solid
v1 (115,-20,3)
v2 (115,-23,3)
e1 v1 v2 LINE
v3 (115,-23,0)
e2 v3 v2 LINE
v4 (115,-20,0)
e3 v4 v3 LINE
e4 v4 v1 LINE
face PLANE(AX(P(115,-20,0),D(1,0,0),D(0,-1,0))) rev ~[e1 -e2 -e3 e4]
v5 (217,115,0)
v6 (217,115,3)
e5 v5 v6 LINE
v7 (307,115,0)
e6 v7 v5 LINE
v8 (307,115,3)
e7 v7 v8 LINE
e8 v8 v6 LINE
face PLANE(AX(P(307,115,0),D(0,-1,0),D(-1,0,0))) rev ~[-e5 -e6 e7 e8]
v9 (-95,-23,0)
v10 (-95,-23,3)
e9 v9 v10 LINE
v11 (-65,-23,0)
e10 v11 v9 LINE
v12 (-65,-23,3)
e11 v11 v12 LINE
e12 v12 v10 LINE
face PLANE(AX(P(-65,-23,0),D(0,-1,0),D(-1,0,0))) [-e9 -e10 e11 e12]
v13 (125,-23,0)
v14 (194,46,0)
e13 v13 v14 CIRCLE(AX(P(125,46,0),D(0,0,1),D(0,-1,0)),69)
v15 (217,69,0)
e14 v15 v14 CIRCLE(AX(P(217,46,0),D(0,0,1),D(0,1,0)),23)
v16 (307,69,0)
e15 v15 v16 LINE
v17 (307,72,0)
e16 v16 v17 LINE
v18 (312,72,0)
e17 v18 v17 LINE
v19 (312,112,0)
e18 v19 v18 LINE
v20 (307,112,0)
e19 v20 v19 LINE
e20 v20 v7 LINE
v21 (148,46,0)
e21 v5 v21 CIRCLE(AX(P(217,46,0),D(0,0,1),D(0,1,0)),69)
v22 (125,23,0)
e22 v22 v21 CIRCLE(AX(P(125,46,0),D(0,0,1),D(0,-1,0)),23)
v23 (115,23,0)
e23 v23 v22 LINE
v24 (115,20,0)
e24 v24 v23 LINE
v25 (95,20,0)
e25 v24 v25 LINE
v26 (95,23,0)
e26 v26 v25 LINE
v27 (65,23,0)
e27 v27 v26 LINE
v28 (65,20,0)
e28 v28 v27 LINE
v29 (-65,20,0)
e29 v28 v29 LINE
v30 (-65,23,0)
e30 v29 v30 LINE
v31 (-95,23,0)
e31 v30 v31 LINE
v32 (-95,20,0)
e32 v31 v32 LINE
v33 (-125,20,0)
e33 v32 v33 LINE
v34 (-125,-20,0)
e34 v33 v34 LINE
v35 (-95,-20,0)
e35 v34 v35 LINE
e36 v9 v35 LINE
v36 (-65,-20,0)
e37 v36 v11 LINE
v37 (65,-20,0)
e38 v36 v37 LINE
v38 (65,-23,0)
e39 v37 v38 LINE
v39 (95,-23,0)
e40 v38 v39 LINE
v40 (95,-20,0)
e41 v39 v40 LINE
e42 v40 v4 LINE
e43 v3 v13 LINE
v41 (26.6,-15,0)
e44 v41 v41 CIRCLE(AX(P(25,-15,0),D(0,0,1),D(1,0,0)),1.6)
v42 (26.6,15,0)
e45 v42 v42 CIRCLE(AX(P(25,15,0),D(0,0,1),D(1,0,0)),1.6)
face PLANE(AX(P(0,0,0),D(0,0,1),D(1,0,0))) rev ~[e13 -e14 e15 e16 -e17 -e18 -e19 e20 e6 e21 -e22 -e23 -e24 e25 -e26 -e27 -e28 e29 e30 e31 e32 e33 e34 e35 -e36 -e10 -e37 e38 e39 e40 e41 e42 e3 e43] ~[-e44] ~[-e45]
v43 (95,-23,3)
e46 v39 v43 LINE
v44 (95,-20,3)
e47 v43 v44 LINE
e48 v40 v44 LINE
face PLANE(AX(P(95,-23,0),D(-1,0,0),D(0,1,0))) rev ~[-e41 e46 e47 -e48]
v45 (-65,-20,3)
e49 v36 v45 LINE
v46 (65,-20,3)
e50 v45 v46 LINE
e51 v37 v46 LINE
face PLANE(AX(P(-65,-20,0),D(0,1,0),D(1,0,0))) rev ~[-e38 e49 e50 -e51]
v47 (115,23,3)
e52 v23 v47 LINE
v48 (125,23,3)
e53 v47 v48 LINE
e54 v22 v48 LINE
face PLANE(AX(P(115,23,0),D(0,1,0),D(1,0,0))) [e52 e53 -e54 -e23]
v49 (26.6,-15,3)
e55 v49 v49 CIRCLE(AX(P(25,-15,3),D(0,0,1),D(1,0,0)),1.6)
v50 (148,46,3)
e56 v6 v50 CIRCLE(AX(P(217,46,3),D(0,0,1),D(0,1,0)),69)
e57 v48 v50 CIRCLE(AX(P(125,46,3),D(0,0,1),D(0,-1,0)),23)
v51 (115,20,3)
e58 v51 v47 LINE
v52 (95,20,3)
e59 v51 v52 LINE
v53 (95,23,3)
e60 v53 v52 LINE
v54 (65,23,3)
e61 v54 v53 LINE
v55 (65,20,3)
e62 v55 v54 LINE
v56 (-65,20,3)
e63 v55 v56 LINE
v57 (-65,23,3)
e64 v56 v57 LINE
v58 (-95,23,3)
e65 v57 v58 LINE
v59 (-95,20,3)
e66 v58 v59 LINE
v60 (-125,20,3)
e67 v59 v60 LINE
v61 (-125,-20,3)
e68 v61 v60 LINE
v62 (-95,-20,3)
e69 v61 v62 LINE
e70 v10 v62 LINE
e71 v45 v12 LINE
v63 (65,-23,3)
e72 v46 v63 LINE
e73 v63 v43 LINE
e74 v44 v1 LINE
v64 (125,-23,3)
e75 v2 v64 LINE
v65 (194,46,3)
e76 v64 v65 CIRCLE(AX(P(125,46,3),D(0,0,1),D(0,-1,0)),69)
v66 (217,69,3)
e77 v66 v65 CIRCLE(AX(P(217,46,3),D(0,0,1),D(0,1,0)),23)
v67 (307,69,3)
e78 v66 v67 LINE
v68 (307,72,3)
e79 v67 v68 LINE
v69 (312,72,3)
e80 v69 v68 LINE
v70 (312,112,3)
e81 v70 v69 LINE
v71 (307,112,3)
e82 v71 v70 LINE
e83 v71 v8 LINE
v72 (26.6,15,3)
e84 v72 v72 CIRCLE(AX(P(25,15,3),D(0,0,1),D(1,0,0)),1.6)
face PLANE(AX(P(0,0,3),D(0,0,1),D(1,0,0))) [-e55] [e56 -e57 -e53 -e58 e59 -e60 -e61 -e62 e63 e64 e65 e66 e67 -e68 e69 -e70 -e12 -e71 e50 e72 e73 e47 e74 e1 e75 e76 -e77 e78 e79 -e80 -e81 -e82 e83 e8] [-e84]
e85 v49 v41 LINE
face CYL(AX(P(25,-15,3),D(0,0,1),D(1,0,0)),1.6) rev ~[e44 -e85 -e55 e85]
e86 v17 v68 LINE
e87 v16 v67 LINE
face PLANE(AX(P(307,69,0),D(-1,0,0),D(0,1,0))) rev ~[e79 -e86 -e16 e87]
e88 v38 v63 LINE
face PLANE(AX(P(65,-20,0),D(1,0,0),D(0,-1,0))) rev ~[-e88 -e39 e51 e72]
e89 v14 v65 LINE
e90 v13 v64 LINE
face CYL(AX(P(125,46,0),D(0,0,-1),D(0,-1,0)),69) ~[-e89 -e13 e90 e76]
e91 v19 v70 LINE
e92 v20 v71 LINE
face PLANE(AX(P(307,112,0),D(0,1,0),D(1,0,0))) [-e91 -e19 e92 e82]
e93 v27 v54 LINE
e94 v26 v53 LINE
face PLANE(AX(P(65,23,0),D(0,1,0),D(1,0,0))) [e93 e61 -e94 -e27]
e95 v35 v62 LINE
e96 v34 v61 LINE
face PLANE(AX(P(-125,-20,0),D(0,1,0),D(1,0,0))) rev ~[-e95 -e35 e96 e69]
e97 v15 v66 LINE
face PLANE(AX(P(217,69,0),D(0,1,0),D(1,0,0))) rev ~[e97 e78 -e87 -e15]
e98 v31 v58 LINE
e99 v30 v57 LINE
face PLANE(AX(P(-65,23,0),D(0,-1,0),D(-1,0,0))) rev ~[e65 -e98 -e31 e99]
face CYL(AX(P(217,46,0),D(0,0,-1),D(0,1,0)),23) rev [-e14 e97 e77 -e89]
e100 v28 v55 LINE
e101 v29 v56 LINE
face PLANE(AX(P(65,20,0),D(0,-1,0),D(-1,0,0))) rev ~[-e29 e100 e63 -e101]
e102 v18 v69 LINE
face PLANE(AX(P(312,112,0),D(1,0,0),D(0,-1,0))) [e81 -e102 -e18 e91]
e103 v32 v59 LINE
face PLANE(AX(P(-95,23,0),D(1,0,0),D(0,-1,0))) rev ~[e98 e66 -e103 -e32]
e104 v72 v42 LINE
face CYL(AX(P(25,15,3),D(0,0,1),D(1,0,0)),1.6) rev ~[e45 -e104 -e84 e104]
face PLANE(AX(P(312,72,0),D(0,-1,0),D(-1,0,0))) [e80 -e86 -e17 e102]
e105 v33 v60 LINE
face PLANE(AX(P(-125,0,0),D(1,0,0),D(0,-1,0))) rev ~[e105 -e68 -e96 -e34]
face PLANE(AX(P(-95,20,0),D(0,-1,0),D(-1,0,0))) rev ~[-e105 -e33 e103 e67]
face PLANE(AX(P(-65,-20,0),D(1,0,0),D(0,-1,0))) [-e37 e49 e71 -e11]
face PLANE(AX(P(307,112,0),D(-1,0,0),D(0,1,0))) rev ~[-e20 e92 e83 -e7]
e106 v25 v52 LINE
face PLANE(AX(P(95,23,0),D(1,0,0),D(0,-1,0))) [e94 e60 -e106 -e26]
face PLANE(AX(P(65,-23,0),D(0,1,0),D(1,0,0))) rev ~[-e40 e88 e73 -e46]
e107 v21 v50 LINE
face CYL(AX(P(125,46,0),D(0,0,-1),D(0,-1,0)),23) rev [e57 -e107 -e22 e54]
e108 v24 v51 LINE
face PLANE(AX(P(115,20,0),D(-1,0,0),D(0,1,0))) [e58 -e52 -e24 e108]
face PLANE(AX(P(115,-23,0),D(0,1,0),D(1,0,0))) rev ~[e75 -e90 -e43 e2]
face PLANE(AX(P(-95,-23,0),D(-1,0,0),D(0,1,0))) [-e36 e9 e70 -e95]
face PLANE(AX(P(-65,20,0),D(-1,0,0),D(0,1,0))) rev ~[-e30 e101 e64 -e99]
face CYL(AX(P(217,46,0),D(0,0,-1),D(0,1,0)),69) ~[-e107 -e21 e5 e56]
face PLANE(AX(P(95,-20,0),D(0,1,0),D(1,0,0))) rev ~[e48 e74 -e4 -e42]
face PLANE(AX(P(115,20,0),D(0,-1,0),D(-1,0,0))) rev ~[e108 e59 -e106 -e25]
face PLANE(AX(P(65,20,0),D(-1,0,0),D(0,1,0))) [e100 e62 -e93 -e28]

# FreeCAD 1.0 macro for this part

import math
import FreeCAD as App
import Part
import Sketcher
from FreeCAD import Vector

doc = App.newDocument("Part")
params = doc.addObject("Spreadsheet::Sheet", "Params")
for row, (alias, value) in enumerate([
    ("sketch1_width", "30 mm"),
    ("sketch1_width2", "20 mm"),
    ("sketch1_width3", "10 mm"),
    ("sketch1_width4", "90 mm"),
    ("sketch1_height", "3 mm"),
    ("pad1_length", "3 mm"),
    ("sketch2_diameter", "3.2 mm"),
    ("pocket1_length", "3 mm"),
], start=1):
    params.set(f"A{row}", alias)
    params.set(f"B{row}", "=" + value)
    params.setAlias(f"B{row}", alias)

body = doc.addObject("PartDesign::Body", "Body")

# Sketch on XY plane
sketch1 = body.newObject("Sketcher::SketchObject", "Sketch")
sketch1.AttachmentSupport = (doc.getObject("XY_Plane"), [""])
sketch1.MapMode = "FlatFace"
sketch1.addGeometry(Part.LineSegment(Vector(-125, -20, 0), Vector(-95, -20, 0)), False)
sketch1.addGeometry(Part.LineSegment(Vector(-95, -20, 0), Vector(-95, -23, 0)), False)
sketch1.addGeometry(Part.LineSegment(Vector(-95, -23, 0), Vector(-65, -23, 0)), False)
sketch1.addGeometry(Part.LineSegment(Vector(-65, -23, 0), Vector(-65, -20, 0)), False)
sketch1.addGeometry(Part.LineSegment(Vector(-65, -20, 0), Vector(65, -20, 0)), False)
sketch1.addGeometry(Part.LineSegment(Vector(65, -20, 0), Vector(65, -23, 0)), False)
sketch1.addGeometry(Part.LineSegment(Vector(65, -23, 0), Vector(95, -23, 0)), False)
sketch1.addGeometry(Part.LineSegment(Vector(95, -23, 0), Vector(95, -20, 0)), False)
sketch1.addGeometry(Part.LineSegment(Vector(95, -20, 0), Vector(115, -20, 0)), False)
sketch1.addGeometry(Part.LineSegment(Vector(115, -20, 0), Vector(115, -23, 0)), False)
sketch1.addGeometry(Part.LineSegment(Vector(115, -23, 0), Vector(125, -23, 0)), False)
sketch1.addGeometry(Part.ArcOfCircle(Part.Circle(Vector(125, 46, 0), Vector(0, 0, 1), 69), math.radians(-90), math.radians(0)), False)
sketch1.addGeometry(Part.ArcOfCircle(Part.Circle(Vector(217, 46, 0), Vector(0, 0, 1), 23), math.radians(90), math.radians(180)), False)
sketch1.addGeometry(Part.LineSegment(Vector(217, 69, 0), Vector(307, 69, 0)), False)
sketch1.addGeometry(Part.LineSegment(Vector(307, 69, 0), Vector(307, 72, 0)), False)
sketch1.addGeometry(Part.LineSegment(Vector(307, 72, 0), Vector(312, 72, 0)), False)
sketch1.addGeometry(Part.LineSegment(Vector(312, 72, 0), Vector(312, 112, 0)), False)
sketch1.addGeometry(Part.LineSegment(Vector(312, 112, 0), Vector(307, 112, 0)), False)
sketch1.addGeometry(Part.LineSegment(Vector(307, 112, 0), Vector(307, 115, 0)), False)
sketch1.addGeometry(Part.LineSegment(Vector(307, 115, 0), Vector(217, 115, 0)), False)
sketch1.addGeometry(Part.ArcOfCircle(Part.Circle(Vector(217, 46, 0), Vector(0, 0, 1), 69), math.radians(90), math.radians(180)), False)
sketch1.addGeometry(Part.ArcOfCircle(Part.Circle(Vector(125, 46, 0), Vector(0, 0, 1), 23), math.radians(-90), math.radians(0)), False)
sketch1.addGeometry(Part.LineSegment(Vector(125, 23, 0), Vector(115, 23, 0)), False)
sketch1.addGeometry(Part.LineSegment(Vector(115, 23, 0), Vector(115, 20, 0)), False)
sketch1.addGeometry(Part.LineSegment(Vector(115, 20, 0), Vector(95, 20, 0)), False)
sketch1.addGeometry(Part.LineSegment(Vector(95, 20, 0), Vector(95, 23, 0)), False)
sketch1.addGeometry(Part.LineSegment(Vector(95, 23, 0), Vector(65, 23, 0)), False)
sketch1.addGeometry(Part.LineSegment(Vector(65, 23, 0), Vector(65, 20, 0)), False)
sketch1.addGeometry(Part.LineSegment(Vector(65, 20, 0), Vector(-65, 20, 0)), False)
sketch1.addGeometry(Part.LineSegment(Vector(-65, 20, 0), Vector(-65, 23, 0)), False)
sketch1.addGeometry(Part.LineSegment(Vector(-65, 23, 0), Vector(-95, 23, 0)), False)
sketch1.addGeometry(Part.LineSegment(Vector(-95, 23, 0), Vector(-95, 20, 0)), False)
sketch1.addGeometry(Part.LineSegment(Vector(-95, 20, 0), Vector(-125, 20, 0)), False)
sketch1.addGeometry(Part.LineSegment(Vector(-125, 20, 0), Vector(-125, -20, 0)), False)
sketch1.addConstraint(Sketcher.Constraint("Coincident", 0, 2, 1, 1))
sketch1.addConstraint(Sketcher.Constraint("Coincident", 1, 2, 2, 1))
sketch1.addConstraint(Sketcher.Constraint("Coincident", 2, 2, 3, 1))
sketch1.addConstraint(Sketcher.Constraint("Coincident", 3, 2, 4, 1))
sketch1.addConstraint(Sketcher.Constraint("Coincident", 4, 2, 5, 1))
sketch1.addConstraint(Sketcher.Constraint("Coincident", 5, 2, 6, 1))
sketch1.addConstraint(Sketcher.Constraint("Coincident", 6, 2, 7, 1))
sketch1.addConstraint(Sketcher.Constraint("Coincident", 7, 2, 8, 1))
sketch1.addConstraint(Sketcher.Constraint("Coincident", 8, 2, 9, 1))
sketch1.addConstraint(Sketcher.Constraint("Coincident", 9, 2, 10, 1))
sketch1.addConstraint(Sketcher.Constraint("Tangent", 10, 2, 11, 1))
sketch1.addConstraint(Sketcher.Constraint("Tangent", 11, 2, 12, 2))
sketch1.addConstraint(Sketcher.Constraint("Tangent", 12, 1, 13, 1))
sketch1.addConstraint(Sketcher.Constraint("Coincident", 13, 2, 14, 1))
sketch1.addConstraint(Sketcher.Constraint("Coincident", 14, 2, 15, 1))
sketch1.addConstraint(Sketcher.Constraint("Coincident", 15, 2, 16, 1))
sketch1.addConstraint(Sketcher.Constraint("Coincident", 16, 2, 17, 1))
sketch1.addConstraint(Sketcher.Constraint("Coincident", 17, 2, 18, 1))
sketch1.addConstraint(Sketcher.Constraint("Coincident", 18, 2, 19, 1))
sketch1.addConstraint(Sketcher.Constraint("Tangent", 19, 2, 20, 1))
sketch1.addConstraint(Sketcher.Constraint("Tangent", 20, 2, 21, 2))
sketch1.addConstraint(Sketcher.Constraint("Tangent", 21, 1, 22, 1))
sketch1.addConstraint(Sketcher.Constraint("Coincident", 22, 2, 23, 1))
sketch1.addConstraint(Sketcher.Constraint("Coincident", 23, 2, 24, 1))
sketch1.addConstraint(Sketcher.Constraint("Coincident", 24, 2, 25, 1))
sketch1.addConstraint(Sketcher.Constraint("Coincident", 25, 2, 26, 1))
sketch1.addConstraint(Sketcher.Constraint("Coincident", 26, 2, 27, 1))
sketch1.addConstraint(Sketcher.Constraint("Coincident", 27, 2, 28, 1))
sketch1.addConstraint(Sketcher.Constraint("Coincident", 28, 2, 29, 1))
sketch1.addConstraint(Sketcher.Constraint("Coincident", 29, 2, 30, 1))
sketch1.addConstraint(Sketcher.Constraint("Coincident", 30, 2, 31, 1))
sketch1.addConstraint(Sketcher.Constraint("Coincident", 31, 2, 32, 1))
sketch1.addConstraint(Sketcher.Constraint("Coincident", 32, 2, 33, 1))
sketch1.addConstraint(Sketcher.Constraint("Coincident", 33, 2, 0, 1))
sketch1.addConstraint(Sketcher.Constraint("Horizontal", 0))
sketch1.addConstraint(Sketcher.Constraint("Vertical", 1))
sketch1.addConstraint(Sketcher.Constraint("Horizontal", 2))
sketch1.addConstraint(Sketcher.Constraint("Vertical", 3))
sketch1.addConstraint(Sketcher.Constraint("Horizontal", 4))
sketch1.addConstraint(Sketcher.Constraint("Vertical", 5))
sketch1.addConstraint(Sketcher.Constraint("Horizontal", 6))
sketch1.addConstraint(Sketcher.Constraint("Vertical", 7))
sketch1.addConstraint(Sketcher.Constraint("Horizontal", 8))
sketch1.addConstraint(Sketcher.Constraint("Vertical", 9))
sketch1.addConstraint(Sketcher.Constraint("Horizontal", 10))
sketch1.addConstraint(Sketcher.Constraint("Horizontal", 13))
sketch1.addConstraint(Sketcher.Constraint("Vertical", 14))
sketch1.addConstraint(Sketcher.Constraint("Horizontal", 15))
sketch1.addConstraint(Sketcher.Constraint("Vertical", 16))
sketch1.addConstraint(Sketcher.Constraint("Horizontal", 17))
sketch1.addConstraint(Sketcher.Constraint("Vertical", 18))
sketch1.addConstraint(Sketcher.Constraint("Horizontal", 19))
sketch1.addConstraint(Sketcher.Constraint("Horizontal", 22))
sketch1.addConstraint(Sketcher.Constraint("Vertical", 23))
sketch1.addConstraint(Sketcher.Constraint("Horizontal", 24))
sketch1.addConstraint(Sketcher.Constraint("Vertical", 25))
sketch1.addConstraint(Sketcher.Constraint("Horizontal", 26))
sketch1.addConstraint(Sketcher.Constraint("Vertical", 27))
sketch1.addConstraint(Sketcher.Constraint("Horizontal", 28))
sketch1.addConstraint(Sketcher.Constraint("Vertical", 29))
sketch1.addConstraint(Sketcher.Constraint("Horizontal", 30))
sketch1.addConstraint(Sketcher.Constraint("Vertical", 31))
sketch1.addConstraint(Sketcher.Constraint("Horizontal", 32))
sketch1.addConstraint(Sketcher.Constraint("Vertical", 33))
sketch1.addConstraint(Sketcher.Constraint("Coincident", 20, 3, 12, 3))
sketch1.addConstraint(Sketcher.Constraint("Coincident", 21, 3, 11, 3))
sketch1.addConstraint(Sketcher.Constraint("Equal", 11, 20))
sketch1.addConstraint(Sketcher.Constraint("Symmetric", 0, 2, 24, 2, -1, 1))
sketch1.addConstraint(Sketcher.Constraint("Symmetric", 2, 2, 26, 2, -1, 1))
sketch1.addConstraint(Sketcher.Constraint("Symmetric", 4, 2, 28, 2, -1, 1))
sketch1.addConstraint(Sketcher.Constraint("Symmetric", 6, 2, 30, 2, -1, 1))
sketch1.addConstraint(Sketcher.Constraint("Symmetric", 2, 2, 5, 2, -2))
sketch1.addConstraint(Sketcher.Constraint("Symmetric", 0, 2, 7, 2, -2))
sketch1.addConstraint(Sketcher.Constraint("Symmetric", 9, 2, 22, 2, -1))
sketch1.addConstraint(Sketcher.Constraint("Horizontal", 11, 3, 12, 3))
sketch1.addConstraint(Sketcher.Constraint("Horizontal", 0, 2, 3, 2))
sketch1.addConstraint(Sketcher.Constraint("Horizontal", 6, 2, 9, 2))
sketch1.addConstraint(Sketcher.Constraint("Horizontal", 28, 2, 31, 2))
sketch1.addConstraint(Sketcher.Constraint("Vertical", 14, 2, 17, 2))
sketch1.addConstraint(Sketcher.Constraint("Equal", 0, 2))
sketch1.addConstraint(Sketcher.Constraint("Equal", 9, 14))
sketch1.addConstraint(Sketcher.Constraint("Equal", 14, 18))
sketch1.addConstraint(Sketcher.Constraint("DistanceX", 0, 1, 0, 2, 30.0))
sketch1.addConstraint(Sketcher.Constraint("DistanceX", 8, 1, 8, 2, 20.0))
sketch1.addConstraint(Sketcher.Constraint("DistanceX", 10, 1, 10, 2, 10.0))
sketch1.addConstraint(Sketcher.Constraint("DistanceX", 13, 1, 13, 2, 90.0))
sketch1.addConstraint(Sketcher.Constraint("DistanceY", 1, 2, 1, 1, 3.0))
sketch1.addConstraint(Sketcher.Constraint("DistanceY", 16, 1, 16, 2, 40.0))
sketch1.addConstraint(Sketcher.Constraint("DistanceX", 0, 2, -1, 1, 95.0))
sketch1.addConstraint(Sketcher.Constraint("Radius", 11, 69.0))
sketch1.addConstraint(Sketcher.Constraint("DistanceX", 12, 1, 15, 2, 95.0))
sketch1.setExpression("Constraints[82]", "Params.sketch1_width")
sketch1.setExpression("Constraints[83]", "Params.sketch1_width2")
sketch1.setExpression("Constraints[84]", "Params.sketch1_width3")
sketch1.setExpression("Constraints[85]", "Params.sketch1_width4")
sketch1.setExpression("Constraints[86]", "Params.sketch1_height")
pad1 = body.newObject("PartDesign::Pad", "Pad")
pad1.Profile = sketch1
pad1.setExpression("Length", "Params.pad1_length")

# Sketch on XY plane
sketch2 = body.newObject("Sketcher::SketchObject", "Sketch001")
sketch2.AttachmentSupport = (doc.getObject("XY_Plane"), [""])
sketch2.MapMode = "FlatFace"
sketch2.AttachmentOffset = App.Placement(Vector(0, 0, 3), App.Rotation())
sketch2.addGeometry(Part.Circle(Vector(25, 15, 0), Vector(0, 0, 1), 1.6), False)
sketch2.addGeometry(Part.Circle(Vector(25, -15, 0), Vector(0, 0, 1), 1.6), False)
sketch2.addConstraint(Sketcher.Constraint("Equal", 0, 1))
sketch2.addConstraint(Sketcher.Constraint("Symmetric", 0, 3, 1, 3, -1))
sketch2.addConstraint(Sketcher.Constraint("Diameter", 0, 3.2))
sketch2.addConstraint(Sketcher.Constraint("DistanceX", -1, 1, 0, 3, 25.0))
sketch2.addConstraint(Sketcher.Constraint("DistanceY", 1, 3, 0, 3, 30.0))
sketch2.setExpression("Constraints[2]", "Params.sketch2_diameter")
pocket1 = body.newObject("PartDesign::Pocket", "Pocket")
pocket1.Profile = sketch2
pocket1.setExpression("Length", "Params.pocket1_length")

doc.recompute()
